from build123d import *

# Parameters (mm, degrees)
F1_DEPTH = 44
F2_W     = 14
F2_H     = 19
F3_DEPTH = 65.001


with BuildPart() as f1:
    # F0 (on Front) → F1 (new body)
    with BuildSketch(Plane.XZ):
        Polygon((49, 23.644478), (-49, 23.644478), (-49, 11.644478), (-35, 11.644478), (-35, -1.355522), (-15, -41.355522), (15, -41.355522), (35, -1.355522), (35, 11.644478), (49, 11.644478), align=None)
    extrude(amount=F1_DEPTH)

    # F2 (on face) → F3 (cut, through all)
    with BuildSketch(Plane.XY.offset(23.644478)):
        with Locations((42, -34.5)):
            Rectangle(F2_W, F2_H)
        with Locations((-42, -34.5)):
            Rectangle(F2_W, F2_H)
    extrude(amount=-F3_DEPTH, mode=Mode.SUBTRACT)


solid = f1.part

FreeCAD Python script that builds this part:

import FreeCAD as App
import Part
import Sketcher
from FreeCAD import Vector

doc = App.newDocument("Part")
body = doc.addObject("PartDesign::Body", "Body")

# Sketch on XZ plane
sketch1 = doc.addObject("Sketcher::SketchObject", "Sketch")
body.addObject(sketch1)
sketch1.AttachmentSupport = (doc.XZ_Plane, [""])
sketch1.MapMode = "FlatFace"
sketch1.addGeometry([
    Part.LineSegment(Vector(49, 24, 0), Vector(-49, 24, 0)),  # 0
    Part.LineSegment(Vector(-49, 24, 0), Vector(-49, 12, 0)),  # 1
    Part.LineSegment(Vector(-49, 12, 0), Vector(-35, 12, 0)),  # 2
    Part.LineSegment(Vector(-35, 12, 0), Vector(-35, -1, 0)),  # 3
    Part.LineSegment(Vector(-35, -1, 0), Vector(-15, -41, 0)),  # 4
    Part.LineSegment(Vector(-15, -41, 0), Vector(15, -41, 0)),  # 5
    Part.LineSegment(Vector(15, -41, 0), Vector(35, -1, 0)),  # 6
    Part.LineSegment(Vector(35, -1, 0), Vector(35, 12, 0)),  # 7
    Part.LineSegment(Vector(35, 12, 0), Vector(49, 12, 0)),  # 8
    Part.LineSegment(Vector(49, 12, 0), Vector(49, 24, 0)),  # 9
], False)
sketch1.addConstraint([
    Sketcher.Constraint("Coincident", 0, 2, 1, 1),
    Sketcher.Constraint("Coincident", 1, 2, 2, 1),
    Sketcher.Constraint("Coincident", 2, 2, 3, 1),
    Sketcher.Constraint("Coincident", 3, 2, 4, 1),
    Sketcher.Constraint("Coincident", 4, 2, 5, 1),
    Sketcher.Constraint("Coincident", 5, 2, 6, 1),
    Sketcher.Constraint("Coincident", 6, 2, 7, 1),
    Sketcher.Constraint("Coincident", 7, 2, 8, 1),
    Sketcher.Constraint("Coincident", 8, 2, 9, 1),
    Sketcher.Constraint("Coincident", 9, 2, 0, 1),
    Sketcher.Constraint("Horizontal", 0),
    Sketcher.Constraint("Vertical", 1),
    Sketcher.Constraint("Horizontal", 2),
    Sketcher.Constraint("Vertical", 3),
    Sketcher.Constraint("Horizontal", 5),
    Sketcher.Constraint("Vertical", 7),
    Sketcher.Constraint("Horizontal", 8),
    Sketcher.Constraint("Vertical", 9),
    Sketcher.Constraint("Symmetric", 3, 2, 6, 2, -2),
    Sketcher.Constraint("Symmetric", 1, 2, 8, 2, -2),
    Sketcher.Constraint("Equal", 4, 6),
    Sketcher.Constraint("DistanceX", 0, 2, 0, 1, 98.0),
    Sketcher.Constraint("DistanceX", 2, 1, 2, 2, 14.0),
    Sketcher.Constraint("DistanceX", 5, 1, 5, 2, 30.0),
    Sketcher.Constraint("DistanceY", 1, 2, 1, 1, 12.0),
    Sketcher.Constraint("DistanceY", 3, 2, 3, 1, 13.0),
    Sketcher.Constraint("DistanceY", 4, 2, 3, 2, 40.0),
    Sketcher.Constraint("DistanceY", 3, 2, -1, 1, 1.355522),
])
pad1 = doc.addObject("PartDesign::Pad", "Pad")
body.addObject(pad1)
pad1.Profile = sketch1
pad1.Length = 44

# Sketch on XY plane
sketch2 = doc.addObject("Sketcher::SketchObject", "Sketch001")
body.addObject(sketch2)
sketch2.AttachmentSupport = (doc.XY_Plane, [""])
sketch2.MapMode = "FlatFace"
sketch2.AttachmentOffset = App.Placement(Vector(0, 0, 23.644478), App.Rotation())
sketch2.addGeometry([
    Part.LineSegment(Vector(35, -25, 0), Vector(35, -44, 0)),  # 0
    Part.LineSegment(Vector(35, -44, 0), Vector(49, -44, 0)),  # 1
    Part.LineSegment(Vector(49, -44, 0), Vector(49, -25, 0)),  # 2
    Part.LineSegment(Vector(49, -25, 0), Vector(35, -25, 0)),  # 3
    Part.LineSegment(Vector(-49, -25, 0), Vector(-49, -44, 0)),  # 4
    Part.LineSegment(Vector(-49, -44, 0), Vector(-35, -44, 0)),  # 5
    Part.LineSegment(Vector(-35, -44, 0), Vector(-35, -25, 0)),  # 6
    Part.LineSegment(Vector(-35, -25, 0), Vector(-49, -25, 0)),  # 7
], False)
sketch2.addConstraint([
    Sketcher.Constraint("Coincident", 0, 2, 1, 1),
    Sketcher.Constraint("Coincident", 1, 2, 2, 1),
    Sketcher.Constraint("Coincident", 2, 2, 3, 1),
    Sketcher.Constraint("Coincident", 3, 2, 0, 1),
    Sketcher.Constraint("Coincident", 4, 2, 5, 1),
    Sketcher.Constraint("Coincident", 5, 2, 6, 1),
    Sketcher.Constraint("Coincident", 6, 2, 7, 1),
    Sketcher.Constraint("Coincident", 7, 2, 4, 1),
    Sketcher.Constraint("Vertical", 0),
    Sketcher.Constraint("Horizontal", 1),
    Sketcher.Constraint("Vertical", 2),
    Sketcher.Constraint("Horizontal", 3),
    Sketcher.Constraint("Vertical", 4),
    Sketcher.Constraint("Horizontal", 5),
    Sketcher.Constraint("Vertical", 6),
    Sketcher.Constraint("Horizontal", 7),
    Sketcher.Constraint("Symmetric", 1, 2, 4, 2, -2),
    Sketcher.Constraint("Symmetric", 3, 2, 6, 2, -2),
    Sketcher.Constraint("DistanceX", 1, 1, 1, 2, 14.0),
    Sketcher.Constraint("DistanceY", 0, 2, 0, 1, 19.0),
    Sketcher.Constraint("DistanceX", -1, 1, 0, 2, 35.0),
    Sketcher.Constraint("DistanceY", 0, 2, -1, 1, 44.0),
])
pocket1 = doc.addObject("PartDesign::Pocket", "Pocket")
body.addObject(pocket1)
pocket1.Profile = sketch2
pocket1.Type = "ThroughAll"

doc.recompute()
